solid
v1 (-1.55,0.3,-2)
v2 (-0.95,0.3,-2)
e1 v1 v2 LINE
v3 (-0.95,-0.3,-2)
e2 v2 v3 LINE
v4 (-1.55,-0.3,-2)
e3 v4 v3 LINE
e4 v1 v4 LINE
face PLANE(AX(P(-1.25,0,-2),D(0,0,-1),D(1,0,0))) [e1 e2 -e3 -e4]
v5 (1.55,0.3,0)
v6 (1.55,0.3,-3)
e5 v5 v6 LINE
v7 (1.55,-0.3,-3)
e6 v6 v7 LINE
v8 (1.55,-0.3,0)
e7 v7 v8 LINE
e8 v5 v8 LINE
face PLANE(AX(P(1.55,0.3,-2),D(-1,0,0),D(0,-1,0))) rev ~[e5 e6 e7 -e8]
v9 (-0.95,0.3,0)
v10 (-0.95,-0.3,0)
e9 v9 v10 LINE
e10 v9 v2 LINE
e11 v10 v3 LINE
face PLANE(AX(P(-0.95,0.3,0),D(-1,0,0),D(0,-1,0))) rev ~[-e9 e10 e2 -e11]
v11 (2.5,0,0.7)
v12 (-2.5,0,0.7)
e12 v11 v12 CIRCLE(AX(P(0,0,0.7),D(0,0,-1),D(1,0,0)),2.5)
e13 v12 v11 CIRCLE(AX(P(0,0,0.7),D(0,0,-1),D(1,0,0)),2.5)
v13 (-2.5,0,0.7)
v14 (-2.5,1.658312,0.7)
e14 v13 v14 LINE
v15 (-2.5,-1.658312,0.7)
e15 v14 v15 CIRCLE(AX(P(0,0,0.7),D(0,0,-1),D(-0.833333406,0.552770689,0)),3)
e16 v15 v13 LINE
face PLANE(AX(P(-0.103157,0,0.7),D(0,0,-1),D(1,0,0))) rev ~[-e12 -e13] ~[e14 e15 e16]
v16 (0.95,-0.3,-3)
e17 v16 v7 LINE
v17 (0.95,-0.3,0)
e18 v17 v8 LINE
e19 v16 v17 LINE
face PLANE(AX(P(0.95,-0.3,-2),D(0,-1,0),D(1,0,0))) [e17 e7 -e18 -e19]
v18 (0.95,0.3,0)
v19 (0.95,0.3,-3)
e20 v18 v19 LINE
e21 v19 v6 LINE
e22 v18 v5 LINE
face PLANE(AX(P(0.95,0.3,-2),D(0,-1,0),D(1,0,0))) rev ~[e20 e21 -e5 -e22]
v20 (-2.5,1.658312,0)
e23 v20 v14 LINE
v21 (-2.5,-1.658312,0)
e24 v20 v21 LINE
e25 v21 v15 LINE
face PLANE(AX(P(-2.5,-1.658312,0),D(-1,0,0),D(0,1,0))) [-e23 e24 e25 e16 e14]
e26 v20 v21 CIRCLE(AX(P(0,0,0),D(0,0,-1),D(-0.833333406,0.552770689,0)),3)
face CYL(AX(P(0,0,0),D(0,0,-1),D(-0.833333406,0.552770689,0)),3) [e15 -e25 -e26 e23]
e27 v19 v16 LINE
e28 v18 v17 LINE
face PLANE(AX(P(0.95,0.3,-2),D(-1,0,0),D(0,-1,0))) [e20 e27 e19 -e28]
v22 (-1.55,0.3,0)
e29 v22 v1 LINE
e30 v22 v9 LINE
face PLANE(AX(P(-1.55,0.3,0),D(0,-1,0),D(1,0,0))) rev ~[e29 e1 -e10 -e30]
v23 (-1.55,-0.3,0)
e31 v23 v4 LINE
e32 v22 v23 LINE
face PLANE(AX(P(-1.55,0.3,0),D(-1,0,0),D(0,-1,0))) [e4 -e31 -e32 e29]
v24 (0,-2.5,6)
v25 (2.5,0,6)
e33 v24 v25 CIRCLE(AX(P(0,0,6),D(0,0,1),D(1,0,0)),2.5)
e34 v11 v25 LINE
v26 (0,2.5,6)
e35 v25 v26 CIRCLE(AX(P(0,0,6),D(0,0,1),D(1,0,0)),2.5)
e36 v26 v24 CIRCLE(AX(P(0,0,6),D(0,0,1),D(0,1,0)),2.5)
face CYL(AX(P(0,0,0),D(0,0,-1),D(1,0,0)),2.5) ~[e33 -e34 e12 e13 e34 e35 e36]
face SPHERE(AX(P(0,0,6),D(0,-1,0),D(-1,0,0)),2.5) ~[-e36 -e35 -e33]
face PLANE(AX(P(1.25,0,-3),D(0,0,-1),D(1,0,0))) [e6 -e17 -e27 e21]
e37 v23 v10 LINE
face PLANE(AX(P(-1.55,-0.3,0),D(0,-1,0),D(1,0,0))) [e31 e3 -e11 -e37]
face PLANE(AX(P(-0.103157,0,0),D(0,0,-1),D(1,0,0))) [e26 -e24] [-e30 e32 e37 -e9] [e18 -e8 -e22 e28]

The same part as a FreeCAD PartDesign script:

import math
import FreeCAD as App
import Part
import Sketcher
from FreeCAD import Vector


def add_polygon(sketch, points):
    """Adds a closed chain of lines whose ends are joined by coincident constraints."""
    first, n = sketch.GeometryCount, len(points)
    for a, b in zip(points, points[1:] + points[:1]):
        sketch.addGeometry(Part.LineSegment(App.Vector(*a, 0), App.Vector(*b, 0)), False)
    for i in range(n):
        sketch.addConstraint(Sketcher.Constraint("Coincident", first + i, 2, first + (i + 1) % n, 1))

doc = App.newDocument("Part")
params = doc.addObject("Spreadsheet::Sheet", "Params")
for row, (alias, value) in enumerate([
    ("sketch1_diameter", "5 mm"),
    ("pad1_length", "6 mm"),
    ("sketch2_radius", "2.5 mm"),
    ("revolution_angle", "360 deg"),
    ("sketch3_radius", "3 mm"),
    ("pad2_length", "0.7 mm"),
    ("sketch4_width", "0.6 mm"),
    ("pad3_length", "2 mm"),
    ("sketch5_width", "0.6 mm"),
    ("pad4_length", "1 mm"),
], start=1):
    params.set(f"A{row}", alias)
    params.set(f"B{row}", "=" + value)
    params.setAlias(f"B{row}", alias)

body = doc.addObject("PartDesign::Body", "Body")

sketch1 = doc.addObject("Sketcher::SketchObject", "Sketch")
body.addObject(sketch1)
sketch1.AttachmentSupport = (doc.XY_Plane, [""])
sketch1.MapMode = "FlatFace"
sketch1.addGeometry(Part.Circle(Vector(0, 0, 0), Vector(0, 0, 1), 2.5), False)
sketch1.addConstraint(Sketcher.Constraint("Coincident", 0, 3, -1, 1))
sketch1.addConstraint(Sketcher.Constraint("Diameter", 0, 5.0))
sketch1.setExpression("Constraints[1]", "Params.sketch1_diameter")
pad1 = doc.addObject("PartDesign::Pad", "Pad")
body.addObject(pad1)
pad1.Profile = sketch1
pad1.setExpression("Length", "Params.pad1_length")

sketch2 = doc.addObject("Sketcher::SketchObject", "Sketch001")
body.addObject(sketch2)
sketch2.AttachmentSupport = (doc.XY_Plane, [""])
sketch2.MapMode = "FlatFace"
sketch2.AttachmentOffset = App.Placement(Vector(0, 0, 6), App.Rotation())
sketch2.addGeometry(Part.ArcOfCircle(Part.Circle(Vector(0, 0, 0), Vector(0, 0, 1), 2.5), math.radians(90), math.radians(270)), False)
sketch2.addGeometry(Part.LineSegment(Vector(0, -2.5, 0), Vector(0, 2.5, 0)), False)
sketch2.addConstraint(Sketcher.Constraint("Coincident", 0, 1, 1, 2))
sketch2.addConstraint(Sketcher.Constraint("Coincident", 1, 1, 0, 2))
sketch2.addConstraint(Sketcher.Constraint("Vertical", 1))
sketch2.addConstraint(Sketcher.Constraint("Coincident", 0, 3, -1, 1))
sketch2.addConstraint(Sketcher.Constraint("PointOnObject", 0, 1, -2))
sketch2.addConstraint(Sketcher.Constraint("Radius", 0, 2.5))
sketch2.setExpression("Constraints[5]", "Params.sketch2_radius")
revolution = doc.addObject("PartDesign::Revolution", "Revolution")
body.addObject(revolution)
revolution.Profile = sketch2
revolution.ReferenceAxis = (sketch2, ["V_Axis"])
revolution.setExpression("Angle", "Params.revolution_angle")

sketch3 = doc.addObject("Sketcher::SketchObject", "Sketch002")
body.addObject(sketch3)
sketch3.AttachmentSupport = (doc.XY_Plane, [""])
sketch3.MapMode = "FlatFace"
sketch3.addGeometry(Part.LineSegment(Vector(-2.5, -1.7, 0), Vector(-2.5, 1.7, 0)), False)
sketch3.addGeometry(Part.ArcOfCircle(Part.Circle(Vector(0, 0, 0), Vector(0, 0, 1), 3), math.radians(-146), math.radians(146)), False)
sketch3.addConstraint(Sketcher.Constraint("Coincident", 0, 1, 1, 1))
sketch3.addConstraint(Sketcher.Constraint("Coincident", 1, 2, 0, 2))
sketch3.addConstraint(Sketcher.Constraint("Vertical", 0))
sketch3.addConstraint(Sketcher.Constraint("Coincident", 1, 3, -1, 1))
sketch3.addConstraint(Sketcher.Constraint("Radius", 1, 3.0))
sketch3.addConstraint(Sketcher.Constraint("DistanceX", 0, 1, -1, 1, 2.5))
sketch3.setExpression("Constraints[4]", "Params.sketch3_radius")
pad2 = doc.addObject("PartDesign::Pad", "Pad001")
body.addObject(pad2)
pad2.Profile = sketch3
pad2.setExpression("Length", "Params.pad2_length")

sketch4 = doc.addObject("Sketcher::SketchObject", "Sketch003")
body.addObject(sketch4)
sketch4.AttachmentSupport = (doc.XY_Plane, [""])
sketch4.MapMode = "FlatFace"
add_polygon(sketch4, [(0.9, -0.3), (0.9, 0.3), (1.6, 0.3), (1.6, -0.3)])
add_polygon(sketch4, [(-1.6, -0.3), (-1.6, 0.3), (-0.9, 0.3), (-0.9, -0.3)])
sketch4.addConstraint(Sketcher.Constraint("Vertical", 0))
sketch4.addConstraint(Sketcher.Constraint("Horizontal", 1))
sketch4.addConstraint(Sketcher.Constraint("Vertical", 2))
sketch4.addConstraint(Sketcher.Constraint("Horizontal", 3))
sketch4.addConstraint(Sketcher.Constraint("Vertical", 4))
sketch4.addConstraint(Sketcher.Constraint("Horizontal", 5))
sketch4.addConstraint(Sketcher.Constraint("Vertical", 6))
sketch4.addConstraint(Sketcher.Constraint("Horizontal", 7))
sketch4.addConstraint(Sketcher.Constraint("Symmetric", 2, 2, 4, 2, -1, 1))
sketch4.addConstraint(Sketcher.Constraint("Symmetric", 0, 2, 6, 2, -1, 1))
sketch4.addConstraint(Sketcher.Constraint("Horizontal", 1, 2, 4, 2))
sketch4.addConstraint(Sketcher.Constraint("Equal", 7, 0))
sketch4.addConstraint(Sketcher.Constraint("DistanceX", 1, 1, 1, 2, 0.6))
sketch4.addConstraint(Sketcher.Constraint("DistanceX", 4, 2, 0, 2, 2.5))
sketch4.setExpression("Constraints[20]", "Params.sketch4_width")
pad3 = doc.addObject("PartDesign::Pad", "Pad002")
body.addObject(pad3)
pad3.Profile = sketch4
pad3.setExpression("Length", "Params.pad3_length")
pad3.Reversed = True

sketch5 = doc.addObject("Sketcher::SketchObject", "Sketch004")
body.addObject(sketch5)
sketch5.AttachmentSupport = (doc.XY_Plane, [""])
sketch5.MapMode = "FlatFace"
sketch5.AttachmentOffset = App.Placement(Vector(0, 0, -2), App.Rotation())
add_polygon(sketch5, [(0.9, -0.3), (0.9, 0.3), (1.6, 0.3), (1.6, -0.3)])
sketch5.addConstraint(Sketcher.Constraint("Vertical", 0))
sketch5.addConstraint(Sketcher.Constraint("Horizontal", 1))
sketch5.addConstraint(Sketcher.Constraint("Vertical", 2))
sketch5.addConstraint(Sketcher.Constraint("Horizontal", 3))
sketch5.addConstraint(Sketcher.Constraint("Equal", 3, 0))
sketch5.addConstraint(Sketcher.Constraint("DistanceX", 1, 1, 1, 2, 0.6))
sketch5.addConstraint(Sketcher.Constraint("DistanceY", -1, 1, 0, 2, 0.3))
sketch5.addConstraint(Sketcher.Constraint("DistanceX", -1, 1, 0, 2, 0.95))
sketch5.setExpression("Constraints[9]", "Params.sketch5_width")
pad4 = doc.addObject("PartDesign::Pad", "Pad003")
body.addObject(pad4)
pad4.Profile = sketch5
pad4.setExpression("Length", "Params.pad4_length")
pad4.Reversed = True

doc.recompute()
